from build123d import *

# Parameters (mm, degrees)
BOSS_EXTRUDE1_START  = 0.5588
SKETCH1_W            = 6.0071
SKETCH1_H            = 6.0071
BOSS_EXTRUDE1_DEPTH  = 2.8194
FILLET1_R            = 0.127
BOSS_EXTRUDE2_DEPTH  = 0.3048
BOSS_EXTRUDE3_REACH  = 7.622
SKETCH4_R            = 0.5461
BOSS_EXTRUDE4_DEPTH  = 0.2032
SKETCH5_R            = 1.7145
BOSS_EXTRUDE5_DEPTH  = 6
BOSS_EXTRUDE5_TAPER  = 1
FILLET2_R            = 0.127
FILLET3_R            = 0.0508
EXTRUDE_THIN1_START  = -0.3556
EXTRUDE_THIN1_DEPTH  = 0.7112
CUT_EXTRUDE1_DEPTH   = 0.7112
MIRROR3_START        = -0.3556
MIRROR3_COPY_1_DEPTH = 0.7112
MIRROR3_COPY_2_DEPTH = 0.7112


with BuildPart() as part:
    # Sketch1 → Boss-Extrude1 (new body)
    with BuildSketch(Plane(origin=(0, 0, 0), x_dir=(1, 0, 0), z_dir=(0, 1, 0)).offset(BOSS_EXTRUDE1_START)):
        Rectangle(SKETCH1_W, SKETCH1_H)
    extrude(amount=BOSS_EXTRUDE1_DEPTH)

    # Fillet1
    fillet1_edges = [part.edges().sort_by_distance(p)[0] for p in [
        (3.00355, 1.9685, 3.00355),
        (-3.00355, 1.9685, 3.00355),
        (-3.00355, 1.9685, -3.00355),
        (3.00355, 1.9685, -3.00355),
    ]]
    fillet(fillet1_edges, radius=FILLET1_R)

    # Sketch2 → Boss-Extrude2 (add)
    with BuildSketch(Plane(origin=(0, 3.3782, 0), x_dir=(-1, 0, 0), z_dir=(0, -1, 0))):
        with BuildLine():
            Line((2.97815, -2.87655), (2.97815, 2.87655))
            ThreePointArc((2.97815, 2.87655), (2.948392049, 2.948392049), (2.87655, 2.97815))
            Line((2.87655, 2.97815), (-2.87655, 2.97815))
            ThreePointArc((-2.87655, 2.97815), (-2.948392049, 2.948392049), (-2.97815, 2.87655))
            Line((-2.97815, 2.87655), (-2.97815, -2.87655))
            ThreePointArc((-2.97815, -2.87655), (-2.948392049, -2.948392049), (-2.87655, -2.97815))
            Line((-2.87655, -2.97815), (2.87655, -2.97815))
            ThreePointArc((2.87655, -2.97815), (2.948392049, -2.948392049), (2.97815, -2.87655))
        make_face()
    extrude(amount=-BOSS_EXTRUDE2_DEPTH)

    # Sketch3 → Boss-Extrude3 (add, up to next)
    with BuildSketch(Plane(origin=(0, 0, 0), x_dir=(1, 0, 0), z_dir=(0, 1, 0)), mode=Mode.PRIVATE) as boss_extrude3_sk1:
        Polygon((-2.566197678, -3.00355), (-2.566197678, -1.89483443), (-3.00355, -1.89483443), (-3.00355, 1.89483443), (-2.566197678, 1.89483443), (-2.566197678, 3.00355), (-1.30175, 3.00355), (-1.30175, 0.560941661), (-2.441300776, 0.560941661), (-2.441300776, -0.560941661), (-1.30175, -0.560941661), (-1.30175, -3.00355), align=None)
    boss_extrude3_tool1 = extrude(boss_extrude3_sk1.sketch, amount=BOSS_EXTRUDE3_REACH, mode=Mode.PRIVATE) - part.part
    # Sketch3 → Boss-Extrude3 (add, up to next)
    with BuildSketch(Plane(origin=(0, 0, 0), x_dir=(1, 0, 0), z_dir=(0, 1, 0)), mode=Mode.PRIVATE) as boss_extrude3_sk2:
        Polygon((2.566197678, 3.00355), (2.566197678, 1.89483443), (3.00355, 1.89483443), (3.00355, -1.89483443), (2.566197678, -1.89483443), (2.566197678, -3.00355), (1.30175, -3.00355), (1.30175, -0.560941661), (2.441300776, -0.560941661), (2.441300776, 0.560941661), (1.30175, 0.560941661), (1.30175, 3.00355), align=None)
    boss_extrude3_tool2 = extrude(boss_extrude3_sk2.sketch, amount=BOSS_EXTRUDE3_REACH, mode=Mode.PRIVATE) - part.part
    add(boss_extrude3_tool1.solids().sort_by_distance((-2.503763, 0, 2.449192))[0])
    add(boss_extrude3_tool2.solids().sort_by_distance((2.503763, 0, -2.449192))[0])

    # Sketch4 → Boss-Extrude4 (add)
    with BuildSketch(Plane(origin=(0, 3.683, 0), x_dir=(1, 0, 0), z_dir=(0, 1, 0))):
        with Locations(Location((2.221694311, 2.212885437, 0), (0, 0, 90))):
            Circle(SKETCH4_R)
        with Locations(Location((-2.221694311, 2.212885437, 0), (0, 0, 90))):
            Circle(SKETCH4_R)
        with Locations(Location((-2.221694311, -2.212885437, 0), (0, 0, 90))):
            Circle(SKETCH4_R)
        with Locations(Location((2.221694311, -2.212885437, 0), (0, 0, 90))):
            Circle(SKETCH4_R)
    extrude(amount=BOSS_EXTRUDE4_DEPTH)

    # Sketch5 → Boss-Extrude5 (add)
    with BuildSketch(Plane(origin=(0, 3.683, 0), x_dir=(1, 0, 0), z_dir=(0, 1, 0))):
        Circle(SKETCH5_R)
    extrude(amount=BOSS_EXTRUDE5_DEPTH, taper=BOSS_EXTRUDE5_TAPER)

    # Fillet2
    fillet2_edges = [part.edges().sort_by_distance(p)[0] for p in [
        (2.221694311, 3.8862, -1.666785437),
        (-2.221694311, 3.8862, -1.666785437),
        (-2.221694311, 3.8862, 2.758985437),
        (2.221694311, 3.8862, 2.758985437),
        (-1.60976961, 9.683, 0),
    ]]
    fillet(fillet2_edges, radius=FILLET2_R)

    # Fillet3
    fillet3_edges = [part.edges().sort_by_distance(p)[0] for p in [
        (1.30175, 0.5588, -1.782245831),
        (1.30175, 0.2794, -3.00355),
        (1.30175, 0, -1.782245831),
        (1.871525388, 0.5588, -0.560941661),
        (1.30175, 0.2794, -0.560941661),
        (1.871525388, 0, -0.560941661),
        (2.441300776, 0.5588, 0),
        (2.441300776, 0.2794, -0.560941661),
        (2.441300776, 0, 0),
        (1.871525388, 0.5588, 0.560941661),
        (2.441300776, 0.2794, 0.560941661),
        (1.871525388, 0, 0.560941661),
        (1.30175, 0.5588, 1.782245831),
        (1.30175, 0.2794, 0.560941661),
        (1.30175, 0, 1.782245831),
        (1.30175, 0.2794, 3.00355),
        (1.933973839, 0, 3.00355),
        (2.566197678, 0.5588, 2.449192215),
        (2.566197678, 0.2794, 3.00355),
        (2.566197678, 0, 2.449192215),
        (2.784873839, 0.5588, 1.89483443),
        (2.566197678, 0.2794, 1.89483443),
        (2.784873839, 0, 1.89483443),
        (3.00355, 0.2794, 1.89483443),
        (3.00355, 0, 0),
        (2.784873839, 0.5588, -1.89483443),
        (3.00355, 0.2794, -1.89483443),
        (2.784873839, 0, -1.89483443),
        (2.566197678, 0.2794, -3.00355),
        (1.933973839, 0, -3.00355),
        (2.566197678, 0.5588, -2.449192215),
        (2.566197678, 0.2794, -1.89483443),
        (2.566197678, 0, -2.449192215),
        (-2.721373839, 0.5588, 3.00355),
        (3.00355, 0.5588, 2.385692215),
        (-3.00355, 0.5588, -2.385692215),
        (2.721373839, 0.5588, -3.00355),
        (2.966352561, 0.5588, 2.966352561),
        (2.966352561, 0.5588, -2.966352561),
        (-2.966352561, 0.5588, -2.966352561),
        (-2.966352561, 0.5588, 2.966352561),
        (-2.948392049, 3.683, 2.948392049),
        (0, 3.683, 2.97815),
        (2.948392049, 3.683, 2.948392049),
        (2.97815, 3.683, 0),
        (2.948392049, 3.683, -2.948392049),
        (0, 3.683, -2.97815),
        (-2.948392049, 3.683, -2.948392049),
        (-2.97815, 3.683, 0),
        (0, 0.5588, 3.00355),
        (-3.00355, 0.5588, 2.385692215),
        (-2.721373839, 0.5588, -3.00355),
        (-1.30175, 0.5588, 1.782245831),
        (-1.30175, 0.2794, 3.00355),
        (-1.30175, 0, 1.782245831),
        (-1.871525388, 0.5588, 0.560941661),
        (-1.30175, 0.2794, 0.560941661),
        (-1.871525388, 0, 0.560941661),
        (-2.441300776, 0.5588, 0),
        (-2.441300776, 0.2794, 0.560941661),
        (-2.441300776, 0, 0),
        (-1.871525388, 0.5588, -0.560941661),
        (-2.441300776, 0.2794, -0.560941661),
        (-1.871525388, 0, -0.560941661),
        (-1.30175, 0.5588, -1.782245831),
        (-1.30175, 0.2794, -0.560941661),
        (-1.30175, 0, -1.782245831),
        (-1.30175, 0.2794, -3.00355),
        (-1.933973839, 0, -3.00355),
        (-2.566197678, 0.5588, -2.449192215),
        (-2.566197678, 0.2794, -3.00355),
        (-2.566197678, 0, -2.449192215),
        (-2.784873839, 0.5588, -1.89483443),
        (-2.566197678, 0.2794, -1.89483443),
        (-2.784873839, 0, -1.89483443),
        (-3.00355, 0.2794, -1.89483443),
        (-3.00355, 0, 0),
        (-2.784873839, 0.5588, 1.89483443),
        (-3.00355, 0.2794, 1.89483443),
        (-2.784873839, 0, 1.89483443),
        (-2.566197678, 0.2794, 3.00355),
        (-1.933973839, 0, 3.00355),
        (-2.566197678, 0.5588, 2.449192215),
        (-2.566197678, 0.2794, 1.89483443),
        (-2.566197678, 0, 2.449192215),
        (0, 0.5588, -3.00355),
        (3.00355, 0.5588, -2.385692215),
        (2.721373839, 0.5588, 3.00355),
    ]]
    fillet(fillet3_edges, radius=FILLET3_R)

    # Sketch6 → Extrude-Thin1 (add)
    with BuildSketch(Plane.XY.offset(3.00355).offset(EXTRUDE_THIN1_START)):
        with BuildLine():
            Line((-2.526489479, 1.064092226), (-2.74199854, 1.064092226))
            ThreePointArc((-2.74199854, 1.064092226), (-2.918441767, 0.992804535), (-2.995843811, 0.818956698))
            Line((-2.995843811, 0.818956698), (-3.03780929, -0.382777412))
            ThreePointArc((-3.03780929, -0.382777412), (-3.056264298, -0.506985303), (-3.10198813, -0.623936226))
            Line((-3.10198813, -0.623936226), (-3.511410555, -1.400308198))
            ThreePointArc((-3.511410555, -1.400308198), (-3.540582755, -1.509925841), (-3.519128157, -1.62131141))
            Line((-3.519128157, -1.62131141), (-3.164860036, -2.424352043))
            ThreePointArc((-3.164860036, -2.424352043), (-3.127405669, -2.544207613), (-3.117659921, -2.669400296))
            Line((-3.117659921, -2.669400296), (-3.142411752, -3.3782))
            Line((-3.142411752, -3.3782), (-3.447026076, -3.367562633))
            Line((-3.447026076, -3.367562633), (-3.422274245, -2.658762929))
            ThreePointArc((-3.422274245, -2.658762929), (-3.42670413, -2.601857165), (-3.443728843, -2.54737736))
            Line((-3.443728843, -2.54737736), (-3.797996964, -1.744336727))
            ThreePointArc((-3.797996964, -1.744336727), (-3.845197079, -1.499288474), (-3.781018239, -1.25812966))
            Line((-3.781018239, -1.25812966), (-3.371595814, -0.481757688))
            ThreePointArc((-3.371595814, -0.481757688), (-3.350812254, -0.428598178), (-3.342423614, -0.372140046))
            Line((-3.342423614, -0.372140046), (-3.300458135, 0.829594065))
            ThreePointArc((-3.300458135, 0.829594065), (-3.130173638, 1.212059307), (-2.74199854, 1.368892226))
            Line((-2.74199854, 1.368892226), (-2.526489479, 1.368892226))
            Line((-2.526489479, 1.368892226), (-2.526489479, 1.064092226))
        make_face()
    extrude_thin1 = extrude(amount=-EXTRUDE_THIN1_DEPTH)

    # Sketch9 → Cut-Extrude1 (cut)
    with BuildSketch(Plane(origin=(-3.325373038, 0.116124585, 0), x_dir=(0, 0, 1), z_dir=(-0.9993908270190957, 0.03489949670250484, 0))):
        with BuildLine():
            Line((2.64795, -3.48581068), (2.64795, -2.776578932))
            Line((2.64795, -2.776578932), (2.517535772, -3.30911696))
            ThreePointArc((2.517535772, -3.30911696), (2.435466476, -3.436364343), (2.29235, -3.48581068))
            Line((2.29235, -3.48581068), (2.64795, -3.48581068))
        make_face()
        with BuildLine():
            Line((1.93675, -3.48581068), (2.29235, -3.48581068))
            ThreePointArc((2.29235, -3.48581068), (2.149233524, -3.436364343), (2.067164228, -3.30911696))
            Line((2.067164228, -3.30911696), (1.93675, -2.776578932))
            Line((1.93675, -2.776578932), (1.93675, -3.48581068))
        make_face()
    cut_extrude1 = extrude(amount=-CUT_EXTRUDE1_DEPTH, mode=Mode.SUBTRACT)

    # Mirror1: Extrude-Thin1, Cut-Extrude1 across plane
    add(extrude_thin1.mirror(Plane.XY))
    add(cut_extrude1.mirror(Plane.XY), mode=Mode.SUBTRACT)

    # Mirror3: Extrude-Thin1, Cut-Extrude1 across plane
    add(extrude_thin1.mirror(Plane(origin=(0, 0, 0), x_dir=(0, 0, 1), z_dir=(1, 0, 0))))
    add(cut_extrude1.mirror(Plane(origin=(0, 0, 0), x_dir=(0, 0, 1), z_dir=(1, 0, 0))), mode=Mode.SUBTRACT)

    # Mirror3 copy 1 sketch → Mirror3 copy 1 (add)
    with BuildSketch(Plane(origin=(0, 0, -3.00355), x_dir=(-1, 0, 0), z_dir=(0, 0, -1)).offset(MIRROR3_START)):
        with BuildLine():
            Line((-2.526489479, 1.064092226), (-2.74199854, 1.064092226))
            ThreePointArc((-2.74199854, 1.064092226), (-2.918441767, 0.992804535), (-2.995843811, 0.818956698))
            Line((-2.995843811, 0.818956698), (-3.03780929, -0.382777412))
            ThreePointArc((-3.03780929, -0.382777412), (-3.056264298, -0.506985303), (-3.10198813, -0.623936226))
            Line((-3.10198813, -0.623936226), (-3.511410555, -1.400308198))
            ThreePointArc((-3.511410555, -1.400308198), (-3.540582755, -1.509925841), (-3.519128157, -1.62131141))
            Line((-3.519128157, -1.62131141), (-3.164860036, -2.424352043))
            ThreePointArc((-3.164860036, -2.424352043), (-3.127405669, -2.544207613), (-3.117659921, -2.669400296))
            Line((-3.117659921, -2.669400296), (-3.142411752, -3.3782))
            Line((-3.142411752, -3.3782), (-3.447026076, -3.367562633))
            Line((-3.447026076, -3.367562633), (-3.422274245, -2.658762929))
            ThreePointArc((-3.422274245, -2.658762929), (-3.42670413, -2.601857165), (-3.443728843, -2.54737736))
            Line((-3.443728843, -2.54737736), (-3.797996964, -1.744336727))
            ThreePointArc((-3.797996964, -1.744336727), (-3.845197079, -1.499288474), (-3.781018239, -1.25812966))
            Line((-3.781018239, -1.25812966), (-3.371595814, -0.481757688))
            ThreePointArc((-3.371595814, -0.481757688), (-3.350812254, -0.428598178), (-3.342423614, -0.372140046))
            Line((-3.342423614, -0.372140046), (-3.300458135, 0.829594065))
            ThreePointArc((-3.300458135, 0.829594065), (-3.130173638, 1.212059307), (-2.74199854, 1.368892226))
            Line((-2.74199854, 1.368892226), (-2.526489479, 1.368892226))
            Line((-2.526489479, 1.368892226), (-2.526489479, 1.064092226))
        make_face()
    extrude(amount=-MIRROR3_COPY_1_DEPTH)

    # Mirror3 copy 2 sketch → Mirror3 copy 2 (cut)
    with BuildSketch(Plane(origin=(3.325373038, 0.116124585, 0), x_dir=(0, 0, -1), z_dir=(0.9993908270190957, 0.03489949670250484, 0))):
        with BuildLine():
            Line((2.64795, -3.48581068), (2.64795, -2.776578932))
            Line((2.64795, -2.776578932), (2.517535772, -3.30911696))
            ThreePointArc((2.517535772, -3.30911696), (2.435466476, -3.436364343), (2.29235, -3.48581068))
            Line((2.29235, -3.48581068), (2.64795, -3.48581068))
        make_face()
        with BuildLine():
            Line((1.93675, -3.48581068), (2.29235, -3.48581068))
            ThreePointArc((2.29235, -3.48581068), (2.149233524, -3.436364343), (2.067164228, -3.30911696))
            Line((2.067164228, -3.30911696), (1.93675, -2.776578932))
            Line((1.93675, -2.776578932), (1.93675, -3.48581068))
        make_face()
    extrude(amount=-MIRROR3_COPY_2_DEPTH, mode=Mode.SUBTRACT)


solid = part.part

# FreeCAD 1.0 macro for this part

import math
import FreeCAD as App
import Part
import Sketcher
Q = App.Units.Quantity


def edges_at(feature, points):
    """Names of the edges that pass closest to the given points."""
    edges = feature.Shape.Edges
    near = lambda p: min(range(len(edges)), key=lambda i: edges[i].distToShape(Part.Vertex(*p))[0])
    return sorted({f"Edge{near(p) + 1}" for p in points})

doc = App.newDocument("Part")
body = doc.addObject("PartDesign::Body", "Body")

# Sketch on XZ plane
sketch1 = body.newObject("Sketcher::SketchObject", "Sketch")
sketch1.AttachmentSupport = (doc.getObject("XZ_Plane"), [""])
sketch1.MapMode = "FlatFace"
sketch1.AttachmentOffset = App.Placement(App.Vector(0, 0, -0.022 * 25.4), App.Rotation())
sketch1.addGeometry([
    Part.LineSegment(App.Vector(-3, -3, 0), App.Vector(-3, 3, 0)),
    Part.LineSegment(App.Vector(-3, 3, 0), App.Vector(3, 3, 0)),
    Part.LineSegment(App.Vector(3, 3, 0), App.Vector(3, -3, 0)),
    Part.LineSegment(App.Vector(3, -3, 0), App.Vector(-3, -3, 0)),
], False)
sketch1.addConstraint([
    Sketcher.Constraint("Coincident", 0, 2, 1, 1),
    Sketcher.Constraint("Coincident", 1, 2, 2, 1),
    Sketcher.Constraint("Coincident", 2, 2, 3, 1),
    Sketcher.Constraint("Coincident", 3, 2, 0, 1),
    Sketcher.Constraint("Vertical", 0),
    Sketcher.Constraint("Horizontal", 1),
    Sketcher.Constraint("Vertical", 2),
    Sketcher.Constraint("Horizontal", 3),
    Sketcher.Constraint("Symmetric", 0, 2, 2, 2, -1, 1),
    Sketcher.Constraint("Equal", 3, 0),
    Sketcher.Constraint("DistanceX", 1, 1, 1, 2, Q("0.2365 in")),
])
pad1 = body.newObject("PartDesign::Pad", "Pad")
pad1.Profile = sketch1
pad1.Length = Q("0.111 in")
pad1.Reversed = True
doc.recompute()

fillet = body.newObject("PartDesign::Fillet", "Fillet")
fillet.Base = (pad1, edges_at(pad1, [
    (3.004, 1.968, 3.004),
    (-3.004, 1.968, 3.004),
    (-3.004, 1.968, -3.004),
    (3.004, 1.968, -3.004),
]))
fillet.Radius = Q("0.005 in")

# Sketch on XZ plane
sketch2 = body.newObject("Sketcher::SketchObject", "Sketch001")
sketch2.AttachmentSupport = (doc.getObject("XZ_Plane"), [""])
sketch2.MapMode = "FlatFace"
sketch2.AttachmentOffset = App.Placement(App.Vector(0, 0, -0.133 * 25.4), App.Rotation())
sketch2.addGeometry([
    Part.LineSegment(App.Vector(-2.98, 2.88, 0), App.Vector(-2.98, -2.88, 0)),  # 0
    Part.ArcOfCircle(Part.Circle(App.Vector(-2.88, -2.88, 0), App.Vector(0, 0, 1), 0.1), math.radians(180), math.radians(270)),  # 1
    Part.LineSegment(App.Vector(-2.88, -2.98, 0), App.Vector(2.88, -2.98, 0)),  # 2
    Part.ArcOfCircle(Part.Circle(App.Vector(2.88, -2.88, 0), App.Vector(0, 0, 1), 0.1), math.radians(-90), math.radians(0)),  # 3
    Part.LineSegment(App.Vector(2.98, -2.88, 0), App.Vector(2.98, 2.88, 0)),  # 4
    Part.ArcOfCircle(Part.Circle(App.Vector(2.88, 2.88, 0), App.Vector(0, 0, 1), 0.1), math.radians(0), math.radians(90)),  # 5
    Part.LineSegment(App.Vector(2.88, 2.98, 0), App.Vector(-2.88, 2.98, 0)),  # 6
    Part.ArcOfCircle(Part.Circle(App.Vector(-2.88, 2.88, 0), App.Vector(0, 0, 1), 0.1), math.radians(90), math.radians(180)),  # 7
], False)
sketch2.addConstraint([
    Sketcher.Constraint("Tangent", 0, 2, 1, 1),
    Sketcher.Constraint("Tangent", 1, 2, 2, 1),
    Sketcher.Constraint("Tangent", 2, 2, 3, 1),
    Sketcher.Constraint("Tangent", 3, 2, 4, 1),
    Sketcher.Constraint("Tangent", 4, 2, 5, 1),
    Sketcher.Constraint("Tangent", 5, 2, 6, 1),
    Sketcher.Constraint("Tangent", 6, 2, 7, 1),
    Sketcher.Constraint("Tangent", 7, 2, 0, 1),
    Sketcher.Constraint("Vertical", 0),
    Sketcher.Constraint("Horizontal", 2),
    Sketcher.Constraint("Vertical", 4),
    Sketcher.Constraint("Horizontal", 6),
    Sketcher.Constraint("Equal", 1, 3),
    Sketcher.Constraint("Equal", 3, 5),
    Sketcher.Constraint("Equal", 5, 7),
    Sketcher.Constraint("Symmetric", 1, 3, 5, 3, -1, 1),
    Sketcher.Constraint("Equal", 6, 0),
    Sketcher.Constraint("Radius", 1, Q("0.004 in")),
    Sketcher.Constraint("DistanceX", 2, 1, 2, 2, Q("0.2265 in")),
])
pad2 = body.newObject("PartDesign::Pad", "Pad001")
pad2.Profile = sketch2
pad2.Length = Q("0.012 in")
pad2.Reversed = True

# Sketch on XZ plane
sketch3 = body.newObject("Sketcher::SketchObject", "Sketch002")
sketch3.AttachmentSupport = (doc.getObject("XZ_Plane"), [""])
sketch3.MapMode = "FlatFace"
sketch3.addGeometry([
    Part.LineSegment(App.Vector(-2.57, 1.89, 0), App.Vector(-2.57, 3, 0)),  # 0
    Part.LineSegment(App.Vector(-2.57, 3, 0), App.Vector(-1.3, 3, 0)),  # 1
    Part.LineSegment(App.Vector(-1.3, 3, 0), App.Vector(-1.3, 0.56, 0)),  # 2
    Part.LineSegment(App.Vector(-1.3, 0.56, 0), App.Vector(-2.44, 0.56, 0)),  # 3
    Part.LineSegment(App.Vector(-2.44, 0.56, 0), App.Vector(-2.44, -0.56, 0)),  # 4
    Part.LineSegment(App.Vector(-2.44, -0.56, 0), App.Vector(-1.3, -0.56, 0)),  # 5
    Part.LineSegment(App.Vector(-1.3, -0.56, 0), App.Vector(-1.3, -3, 0)),  # 6
    Part.LineSegment(App.Vector(-1.3, -3, 0), App.Vector(-2.57, -3, 0)),  # 7
    Part.LineSegment(App.Vector(-2.57, -3, 0), App.Vector(-2.57, -1.89, 0)),  # 8
    Part.LineSegment(App.Vector(-2.57, -1.89, 0), App.Vector(-3, -1.89, 0)),  # 9
    Part.LineSegment(App.Vector(-3, -1.89, 0), App.Vector(-3, 1.89, 0)),  # 10
    Part.LineSegment(App.Vector(-3, 1.89, 0), App.Vector(-2.57, 1.89, 0)),  # 11
], False)
sketch3.addConstraint([
    Sketcher.Constraint("Coincident", 0, 2, 1, 1),
    Sketcher.Constraint("Coincident", 1, 2, 2, 1),
    Sketcher.Constraint("Coincident", 2, 2, 3, 1),
    Sketcher.Constraint("Coincident", 3, 2, 4, 1),
    Sketcher.Constraint("Coincident", 4, 2, 5, 1),
    Sketcher.Constraint("Coincident", 5, 2, 6, 1),
    Sketcher.Constraint("Coincident", 6, 2, 7, 1),
    Sketcher.Constraint("Coincident", 7, 2, 8, 1),
    Sketcher.Constraint("Coincident", 8, 2, 9, 1),
    Sketcher.Constraint("Coincident", 9, 2, 10, 1),
    Sketcher.Constraint("Coincident", 10, 2, 11, 1),
    Sketcher.Constraint("Coincident", 11, 2, 0, 1),
    Sketcher.Constraint("Vertical", 0),
    Sketcher.Constraint("Horizontal", 1),
    Sketcher.Constraint("Vertical", 2),
    Sketcher.Constraint("Horizontal", 3),
    Sketcher.Constraint("Vertical", 4),
    Sketcher.Constraint("Horizontal", 5),
    Sketcher.Constraint("Vertical", 6),
    Sketcher.Constraint("Horizontal", 7),
    Sketcher.Constraint("Vertical", 8),
    Sketcher.Constraint("Horizontal", 9),
    Sketcher.Constraint("Vertical", 10),
    Sketcher.Constraint("Horizontal", 11),
    Sketcher.Constraint("Symmetric", 2, 2, 5, 2, -1),
    Sketcher.Constraint("Symmetric", 0, 2, 7, 2, -1),
    Sketcher.Constraint("Equal", 0, 8),
    Sketcher.Constraint("DistanceX", 9, 2, 6, 2, Q("0.067 in")),
    Sketcher.Constraint("DistanceY", 6, 2, 1, 2, Q("0.2365 in")),
    Sketcher.Constraint("DistanceX", 3, 2, 3, 1, 1.139551),
    Sketcher.Constraint("DistanceY", 2, 2, 2, 1, 2.442608),
    Sketcher.Constraint("DistanceY", 10, 1, 10, 2, 3.789669),
    Sketcher.Constraint("DistanceX", 3, 2, -1, 1, 2.441301),
    Sketcher.Constraint("DistanceX", 1, 1, 1, 2, 1.264448),
])
pad3 = body.newObject("PartDesign::Pad", "Pad002")
pad3.Profile = sketch3
pad3.Type = "UpToFirst"
pad3.Reversed = True

# Sketch on XZ plane
sketch4 = body.newObject("Sketcher::SketchObject", "Sketch003")
sketch4.AttachmentSupport = (doc.getObject("XZ_Plane"), [""])
sketch4.MapMode = "FlatFace"
sketch4.addGeometry([
    Part.LineSegment(App.Vector(2.57, -1.89, 0), App.Vector(2.57, -3, 0)),  # 0
    Part.LineSegment(App.Vector(2.57, -3, 0), App.Vector(1.3, -3, 0)),  # 1
    Part.LineSegment(App.Vector(1.3, -3, 0), App.Vector(1.3, -0.56, 0)),  # 2
    Part.LineSegment(App.Vector(1.3, -0.56, 0), App.Vector(2.44, -0.56, 0)),  # 3
    Part.LineSegment(App.Vector(2.44, -0.56, 0), App.Vector(2.44, 0.56, 0)),  # 4
    Part.LineSegment(App.Vector(2.44, 0.56, 0), App.Vector(1.3, 0.56, 0)),  # 5
    Part.LineSegment(App.Vector(1.3, 0.56, 0), App.Vector(1.3, 3, 0)),  # 6
    Part.LineSegment(App.Vector(1.3, 3, 0), App.Vector(2.57, 3, 0)),  # 7
    Part.LineSegment(App.Vector(2.57, 3, 0), App.Vector(2.57, 1.89, 0)),  # 8
    Part.LineSegment(App.Vector(2.57, 1.89, 0), App.Vector(3, 1.89, 0)),  # 9
    Part.LineSegment(App.Vector(3, 1.89, 0), App.Vector(3, -1.89, 0)),  # 10
    Part.LineSegment(App.Vector(3, -1.89, 0), App.Vector(2.57, -1.89, 0)),  # 11
], False)
sketch4.addConstraint([
    Sketcher.Constraint("Coincident", 0, 2, 1, 1),
    Sketcher.Constraint("Coincident", 1, 2, 2, 1),
    Sketcher.Constraint("Coincident", 2, 2, 3, 1),
    Sketcher.Constraint("Coincident", 3, 2, 4, 1),
    Sketcher.Constraint("Coincident", 4, 2, 5, 1),
    Sketcher.Constraint("Coincident", 5, 2, 6, 1),
    Sketcher.Constraint("Coincident", 6, 2, 7, 1),
    Sketcher.Constraint("Coincident", 7, 2, 8, 1),
    Sketcher.Constraint("Coincident", 8, 2, 9, 1),
    Sketcher.Constraint("Coincident", 9, 2, 10, 1),
    Sketcher.Constraint("Coincident", 10, 2, 11, 1),
    Sketcher.Constraint("Coincident", 11, 2, 0, 1),
    Sketcher.Constraint("Vertical", 0),
    Sketcher.Constraint("Horizontal", 1),
    Sketcher.Constraint("Vertical", 2),
    Sketcher.Constraint("Horizontal", 3),
    Sketcher.Constraint("Vertical", 4),
    Sketcher.Constraint("Horizontal", 5),
    Sketcher.Constraint("Vertical", 6),
    Sketcher.Constraint("Horizontal", 7),
    Sketcher.Constraint("Vertical", 8),
    Sketcher.Constraint("Horizontal", 9),
    Sketcher.Constraint("Vertical", 10),
    Sketcher.Constraint("Horizontal", 11),
    Sketcher.Constraint("Symmetric", 2, 2, 5, 2, -1),
    Sketcher.Constraint("Symmetric", 0, 2, 7, 2, -1),
    Sketcher.Constraint("Equal", 0, 8),
    Sketcher.Constraint("DistanceX", 6, 2, 9, 2, Q("0.067 in")),
    Sketcher.Constraint("DistanceY", 1, 2, 6, 2, Q("0.2365 in")),
    Sketcher.Constraint("DistanceX", 3, 1, 3, 2, 1.139551),
    Sketcher.Constraint("DistanceY", 2, 1, 2, 2, 2.442608),
    Sketcher.Constraint("DistanceY", 10, 2, 10, 1, 3.789669),
    Sketcher.Constraint("DistanceX", -1, 1, 3, 2, 2.441301),
    Sketcher.Constraint("DistanceX", 1, 2, 1, 1, 1.264448),
])
pad4 = body.newObject("PartDesign::Pad", "Pad003")
pad4.Profile = sketch4
pad4.Type = "UpToFirst"
pad4.Reversed = True

# Sketch on XZ plane
sketch5 = body.newObject("Sketcher::SketchObject", "Sketch004")
sketch5.AttachmentSupport = (doc.getObject("XZ_Plane"), [""])
sketch5.MapMode = "FlatFace"
sketch5.AttachmentOffset = App.Placement(App.Vector(0, 0, -0.145 * 25.4), App.Rotation())
sketch5.addGeometry([
    Part.Circle(App.Vector(2.2, -2.2, 0), App.Vector(0, 0, 1), 0.5),
    Part.Circle(App.Vector(-2.2, -2.2, 0), App.Vector(0, 0, 1), 0.5),
    Part.Circle(App.Vector(-2.2, 2.2, 0), App.Vector(0, 0, 1), 0.5),
    Part.Circle(App.Vector(2.2, 2.2, 0), App.Vector(0, 0, 1), 0.5),
], False)
sketch5.addConstraint([
    Sketcher.Constraint("Equal", 0, 1),
    Sketcher.Constraint("Equal", 1, 2),
    Sketcher.Constraint("Equal", 2, 3),
    Sketcher.Constraint("Symmetric", 0, 3, 2, 3, -1, 1),
    Sketcher.Constraint("Symmetric", 1, 3, 3, 3, -1, 1),
    Sketcher.Constraint("Symmetric", 0, 3, 1, 3, -2),
    Sketcher.Constraint("Diameter", 0, Q("0.043 in")),
    Sketcher.Constraint("DistanceX", 1, 3, 0, 3, 4.443389),
    Sketcher.Constraint("DistanceY", 1, 3, 2, 3, 4.425771),
])
pad5 = body.newObject("PartDesign::Pad", "Pad004")
pad5.Profile = sketch5
pad5.Length = Q("0.008 in")
pad5.Reversed = True

# Sketch on XZ plane
sketch6 = body.newObject("Sketcher::SketchObject", "Sketch005")
sketch6.AttachmentSupport = (doc.getObject("XZ_Plane"), [""])
sketch6.MapMode = "FlatFace"
sketch6.AttachmentOffset = App.Placement(App.Vector(0, 0, -0.145 * 25.4), App.Rotation())
sketch6.addGeometry(Part.Circle(App.Vector(0, 0, 0), App.Vector(0, 0, 1), 1.7), False)
sketch6.addConstraint([
    Sketcher.Constraint("Coincident", 0, 3, -1, 1),
    Sketcher.Constraint("Diameter", 0, Q("0.135 in")),
])
pad6 = body.newObject("PartDesign::Pad", "Pad005")
pad6.Profile = sketch6
pad6.Length = 6
pad6.Reversed = True
pad6.TaperAngle = -1
doc.recompute()

fillet2 = body.newObject("PartDesign::Fillet", "Fillet001")
fillet2.Base = (pad6, edges_at(pad6, [
    (2.222, 3.886, -1.667),
    (-2.222, 3.886, -1.667),
    (-2.222, 3.886, 2.759),
    (2.222, 3.886, 2.759),
    (-1.61, 9.683, 0),
]))
fillet2.Radius = Q("0.005 in")
doc.recompute()

fillet3 = body.newObject("PartDesign::Fillet", "Fillet002")
fillet3.Base = (fillet2, edges_at(fillet2, [
    (1.302, 0.559, -1.782),
    (1.302, 0.279, -3.004),
    (1.302, 0, -1.782),
    (1.872, 0.559, -0.561),
    (1.302, 0.279, -0.561),
    (1.872, 0, -0.561),
    (2.441, 0.559, 0),
    (2.441, 0.279, -0.561),
    (2.441, 0, 0),
    (1.872, 0.559, 0.561),
    (2.441, 0.279, 0.561),
    (1.872, 0, 0.561),
    (1.302, 0.559, 1.782),
    (1.302, 0.279, 0.561),
    (1.302, 0, 1.782),
    (1.302, 0.279, 3.004),
    (1.934, 0, 3.004),
    (2.566, 0.559, 2.449),
    (2.566, 0.279, 3.004),
    (2.566, 0, 2.449),
    (2.785, 0.559, 1.895),
    (2.566, 0.279, 1.895),
    (2.785, 0, 1.895),
    (3.004, 0.279, 1.895),
    (3.004, 0, 0),
    (2.785, 0.559, -1.895),
    (3.004, 0.279, -1.895),
    (2.785, 0, -1.895),
    (2.566, 0.279, -3.004),
    (1.934, 0, -3.004),
    (2.566, 0.559, -2.449),
    (2.566, 0.279, -1.895),
    (2.566, 0, -2.449),
    (-2.721, 0.559, 3.004),
    (3.004, 0.559, 2.386),
    (-3.004, 0.559, -2.386),
    (2.721, 0.559, -3.004),
    (2.966, 0.559, 2.966),
    (2.966, 0.559, -2.966),
    (-2.966, 0.559, -2.966),
    (-2.966, 0.559, 2.966),
    (-2.948, 3.683, 2.948),
    (0, 3.683, 2.978),
    (2.948, 3.683, 2.948),
    (2.978, 3.683, 0),
    (2.948, 3.683, -2.948),
    (0, 3.683, -2.978),
    (-2.948, 3.683, -2.948),
    (-2.978, 3.683, 0),
    (0, 0.559, 3.004),
    (-3.004, 0.559, 2.386),
    (-2.721, 0.559, -3.004),
    (-1.302, 0.559, 1.782),
    (-1.302, 0.279, 3.004),
    (-1.302, 0, 1.782),
    (-1.872, 0.559, 0.561),
    (-1.302, 0.279, 0.561),
    (-1.872, 0, 0.561),
    (-2.441, 0.559, 0),
    (-2.441, 0.279, 0.561),
    (-2.441, 0, 0),
    (-1.872, 0.559, -0.561),
    (-2.441, 0.279, -0.561),
    (-1.872, 0, -0.561),
    (-1.302, 0.559, -1.782),
    (-1.302, 0.279, -0.561),
    (-1.302, 0, -1.782),
    (-1.302, 0.279, -3.004),
    (-1.934, 0, -3.004),
    (-2.566, 0.559, -2.449),
    (-2.566, 0.279, -3.004),
    (-2.566, 0, -2.449),
    (-2.785, 0.559, -1.895),
    (-2.566, 0.279, -1.895),
    (-2.785, 0, -1.895),
    (-3.004, 0.279, -1.895),
    (-3.004, 0, 0),
    (-2.785, 0.559, 1.895),
    (-3.004, 0.279, 1.895),
    (-2.785, 0, 1.895),
    (-2.566, 0.279, 3.004),
    (-1.934, 0, 3.004),
    (-2.566, 0.559, 2.449),
    (-2.566, 0.279, 1.895),
    (-2.566, 0, 2.449),
    (0, 0.559, -3.004),
    (3.004, 0.559, -2.386),
    (2.721, 0.559, 3.004),
]))
fillet3.Radius = Q("0.002 in")

# Sketch on XY plane
sketch7 = body.newObject("Sketcher::SketchObject", "Sketch006")
sketch7.AttachmentSupport = (doc.getObject("XY_Plane"), [""])
sketch7.MapMode = "FlatFace"
sketch7.AttachmentOffset = App.Placement(App.Vector(0, 0, 2.64795), App.Rotation())
sketch7.addGeometry([
    Part.LineSegment(App.Vector(-2.74, 1.06, 0), App.Vector(-2.53, 1.06, 0)),  # 0
    Part.LineSegment(App.Vector(-2.53, 1.06, 0), App.Vector(-2.53, 1.37, 0)),  # 1
    Part.LineSegment(App.Vector(-2.53, 1.37, 0), App.Vector(-2.74, 1.37, 0)),  # 2
    Part.ArcOfCircle(Part.Circle(App.Vector(-2.74, 0.81, 0), App.Vector(0, 0, 1), 0.56), math.radians(90), math.radians(178)),  # 3
    Part.LineSegment(App.Vector(-3.3, 0.83, 0), App.Vector(-3.34, -0.37, 0)),  # 4
    Part.ArcOfCircle(Part.Circle(App.Vector(-3.6, -0.36, 0), App.Vector(0, 0, 1), 0.25), math.radians(-28), math.radians(-2)),  # 5
    Part.LineSegment(App.Vector(-3.37, -0.48, 0), App.Vector(-3.78, -1.26, 0)),  # 6
    Part.ArcOfCircle(Part.Circle(App.Vector(-3.29, -1.52, 0), App.Vector(0, 0, 1), 0.56), math.radians(152), math.radians(204)),  # 7
    Part.LineSegment(App.Vector(-3.8, -1.74, 0), App.Vector(-3.44, -2.55, 0)),  # 8
    Part.ArcOfCircle(Part.Circle(App.Vector(-3.68, -2.65, 0), App.Vector(0, 0, 1), 0.25), math.radians(-2), math.radians(24)),  # 9
    Part.LineSegment(App.Vector(-3.42, -2.66, 0), App.Vector(-3.45, -3.37, 0)),  # 10
    Part.LineSegment(App.Vector(-3.45, -3.37, 0), App.Vector(-3.14, -3.38, 0)),  # 11
    Part.LineSegment(App.Vector(-3.14, -3.38, 0), App.Vector(-3.12, -2.67, 0)),  # 12
    Part.ArcOfCircle(Part.Circle(App.Vector(-3.68, -2.65, 0), App.Vector(0, 0, 1), 0.56), math.radians(-2), math.radians(24)),  # 13
    Part.LineSegment(App.Vector(-3.16, -2.42, 0), App.Vector(-3.52, -1.62, 0)),  # 14
    Part.ArcOfCircle(Part.Circle(App.Vector(-3.29, -1.52, 0), App.Vector(0, 0, 1), 0.25), math.radians(152), math.radians(204)),  # 15
    Part.LineSegment(App.Vector(-3.51, -1.4, 0), App.Vector(-3.1, -0.62, 0)),  # 16
    Part.ArcOfCircle(Part.Circle(App.Vector(-3.6, -0.36, 0), App.Vector(0, 0, 1), 0.56), math.radians(-28), math.radians(-2)),  # 17
    Part.LineSegment(App.Vector(-3.04, -0.38, 0), App.Vector(-3, 0.82, 0)),  # 18
    Part.ArcOfCircle(Part.Circle(App.Vector(-2.74, 0.81, 0), App.Vector(0, 0, 1), 0.25), math.radians(90), math.radians(178)),  # 19
], False)
sketch7.addConstraint([
    Sketcher.Constraint("Coincident", 0, 2, 1, 1),
    Sketcher.Constraint("Coincident", 1, 2, 2, 1),
    Sketcher.Constraint("Tangent", 2, 2, 3, 1),
    Sketcher.Constraint("Tangent", 3, 2, 4, 1),
    Sketcher.Constraint("Tangent", 4, 2, 5, 2),
    Sketcher.Constraint("Tangent", 5, 1, 6, 1),
    Sketcher.Constraint("Tangent", 6, 2, 7, 1),
    Sketcher.Constraint("Tangent", 7, 2, 8, 1),
    Sketcher.Constraint("Tangent", 8, 2, 9, 2),
    Sketcher.Constraint("Tangent", 9, 1, 10, 1),
    Sketcher.Constraint("Coincident", 10, 2, 11, 1),
    Sketcher.Constraint("Coincident", 11, 2, 12, 1),
    Sketcher.Constraint("Tangent", 12, 2, 13, 1),
    Sketcher.Constraint("Tangent", 13, 2, 14, 1),
    Sketcher.Constraint("Tangent", 14, 2, 15, 2),
    Sketcher.Constraint("Tangent", 15, 1, 16, 1),
    Sketcher.Constraint("Tangent", 16, 2, 17, 1),
    Sketcher.Constraint("Tangent", 17, 2, 18, 1),
    Sketcher.Constraint("Tangent", 18, 2, 19, 2),
    Sketcher.Constraint("Tangent", 19, 1, 0, 1),
    Sketcher.Constraint("Horizontal", 0),
    Sketcher.Constraint("Vertical", 1),
    Sketcher.Constraint("Horizontal", 2),
    Sketcher.Constraint("Coincident", 13, 3, 9, 3),
    Sketcher.Constraint("Coincident", 15, 3, 7, 3),
    Sketcher.Constraint("Coincident", 17, 3, 5, 3),
    Sketcher.Constraint("Coincident", 19, 3, 3, 3),
    Sketcher.Constraint("Equal", 3, 7),
    Sketcher.Constraint("Equal", 5, 9),
    Sketcher.Constraint("Equal", 7, 13),
    Sketcher.Constraint("Equal", 9, 15),
    Sketcher.Constraint("Equal", 13, 17),
    Sketcher.Constraint("Equal", 15, 19),
    Sketcher.Constraint("Parallel", 4, 10),
    Sketcher.Constraint("Perpendicular", 10, 11),
    Sketcher.Constraint("Perpendicular", 11, 12),
    Sketcher.Constraint("Equal", 6, 8),
    Sketcher.Constraint("Radius", 5, Q("0.01 in")),
    Sketcher.Constraint("Angle", 4, Q("-92 deg")),
    Sketcher.Constraint("Radius", 3, Q("0.022 in")),
    Sketcher.Constraint("DistanceY", 11, 2, -1, 1, Q("0.133 in")),
    Sketcher.Constraint("DistanceX", 0, 1, 0, 2, 0.215509),
    Sketcher.Constraint("DistanceX", 3, 3, -1, 1, 2.741999),
    Sketcher.Constraint("DistanceY", 9, 3, -1, 1, 2.649898),
    Sketcher.Constraint("DistanceX", 13, 2, 12, 2, 0.0472),
    Sketcher.Constraint("DistanceX", 5, 3, -1, 1, 3.596269),
    Sketcher.Constraint("DistanceY", 7, 3, -1, 1, 1.51879),
    Sketcher.Constraint("DistanceX", 9, 3, -1, 1, 3.67612),
])
pad7 = body.newObject("PartDesign::Pad", "Pad006")
pad7.Profile = sketch7
pad7.Length = Q("0.028 in")
pad7.Reversed = True

# Sketch on an angled plane
sketch8 = body.newObject("Sketcher::SketchObject", "Sketch007")
sketch8.Placement = App.Placement(App.Vector(-3.325373, 0.116125, 0), App.Rotation(App.Vector(0, 0, 1), App.Vector(0.034899497, 0.999390827, 0), App.Vector(-0.999390827, 0.034899497, 0), "ZXY"))
sketch8.addGeometry([
    Part.LineSegment(App.Vector(2.65, -3.49, 0), App.Vector(2.65, -2.78, 0)),  # 0
    Part.LineSegment(App.Vector(2.65, -2.78, 0), App.Vector(2.52, -3.31, 0)),  # 1
    Part.ArcOfCircle(Part.Circle(App.Vector(2.29, -3.25, 0), App.Vector(0, 0, 1), 0.23), math.radians(-90), math.radians(-14)),  # 2
    Part.LineSegment(App.Vector(2.29, -3.49, 0), App.Vector(2.65, -3.49, 0)),  # 3
    Part.LineSegment(App.Vector(1.94, -3.49, 0), App.Vector(2.29, -3.49, 0)),  # 4
    Part.ArcOfCircle(Part.Circle(App.Vector(2.29, -3.25, 0), App.Vector(0, 0, 1), 0.23), math.radians(-166), math.radians(-90)),  # 5
    Part.LineSegment(App.Vector(2.07, -3.31, 0), App.Vector(1.94, -2.78, 0)),  # 6
    Part.LineSegment(App.Vector(1.94, -2.78, 0), App.Vector(1.94, -3.49, 0)),  # 7
], False)
sketch8.addConstraint([
    Sketcher.Constraint("Coincident", 0, 2, 1, 1),
    Sketcher.Constraint("Tangent", 1, 2, 2, 2),
    Sketcher.Constraint("Tangent", 2, 1, 3, 1),
    Sketcher.Constraint("Coincident", 3, 2, 0, 1),
    Sketcher.Constraint("Tangent", 4, 2, 5, 2),
    Sketcher.Constraint("Tangent", 5, 1, 6, 1),
    Sketcher.Constraint("Coincident", 6, 2, 7, 1),
    Sketcher.Constraint("Coincident", 7, 2, 4, 1),
    Sketcher.Constraint("Vertical", 0),
    Sketcher.Constraint("Horizontal", 3),
    Sketcher.Constraint("Horizontal", 4),
    Sketcher.Constraint("Vertical", 7),
    Sketcher.Constraint("Coincident", 5, 3, 2, 3),
    Sketcher.Constraint("Equal", 2, 5),
    Sketcher.Constraint("Horizontal", 1, 2, 5, 1),
    Sketcher.Constraint("Horizontal", 0, 2, 6, 2),
    Sketcher.Constraint("DistanceX", 3, 1, 3, 2, Q("0.014 in")),
    Sketcher.Constraint("Radius", 2, 0.23184),
    Sketcher.Constraint("DistanceY", 0, 1, 0, 2, 0.709232),
    Sketcher.Constraint("DistanceX", -1, 1, 2, 3, 2.29235),
    Sketcher.Constraint("DistanceY", 2, 3, -1, 1, 3.253971),
])
pocket1 = body.newObject("PartDesign::Pocket", "Pocket")
pocket1.Profile = sketch8
pocket1.Length = Q("0.028 in")
doc.recompute()

mirrored = body.newObject("PartDesign::Mirrored", "Mirrored")
mirrored.Originals = [pad7, pocket1]
mirrored.MirrorPlane = (doc.getObject("XY_Plane"), [""])
body.Tip = mirrored
doc.recompute()

mirrored2 = body.newObject("PartDesign::Mirrored", "Mirrored001")
mirrored2.Originals = [pad7, pocket1]
mirrored2.MirrorPlane = (doc.getObject("YZ_Plane"), [""])
body.Tip = mirrored2

# Sketch on XY plane
sketch9 = body.newObject("Sketcher::SketchObject", "Sketch008")
sketch9.AttachmentSupport = (doc.getObject("XY_Plane"), [""])
sketch9.MapMode = "FlatFace"
sketch9.AttachmentOffset = App.Placement(App.Vector(0, 0, -2.64795), App.Rotation())
sketch9.addGeometry([
    Part.LineSegment(App.Vector(2.74, 1.06, 0), App.Vector(2.53, 1.06, 0)),  # 0
    Part.LineSegment(App.Vector(2.53, 1.06, 0), App.Vector(2.53, 1.37, 0)),  # 1
    Part.LineSegment(App.Vector(2.53, 1.37, 0), App.Vector(2.74, 1.37, 0)),  # 2
    Part.ArcOfCircle(Part.Circle(App.Vector(2.74, 0.81, 0), App.Vector(0, 0, 1), 0.56), math.radians(2), math.radians(90)),  # 3
    Part.LineSegment(App.Vector(3.3, 0.83, 0), App.Vector(3.34, -0.37, 0)),  # 4
    Part.ArcOfCircle(Part.Circle(App.Vector(3.6, -0.36, 0), App.Vector(0, 0, 1), 0.25), math.radians(-178), math.radians(-152)),  # 5
    Part.LineSegment(App.Vector(3.37, -0.48, 0), App.Vector(3.78, -1.26, 0)),  # 6
    Part.ArcOfCircle(Part.Circle(App.Vector(3.29, -1.52, 0), App.Vector(0, 0, 1), 0.56), math.radians(-24), math.radians(28)),  # 7
    Part.LineSegment(App.Vector(3.8, -1.74, 0), App.Vector(3.44, -2.55, 0)),  # 8
    Part.ArcOfCircle(Part.Circle(App.Vector(3.68, -2.65, 0), App.Vector(0, 0, 1), 0.25), math.radians(156), math.radians(182)),  # 9
    Part.LineSegment(App.Vector(3.42, -2.66, 0), App.Vector(3.45, -3.37, 0)),  # 10
    Part.LineSegment(App.Vector(3.45, -3.37, 0), App.Vector(3.14, -3.38, 0)),  # 11
    Part.LineSegment(App.Vector(3.14, -3.38, 0), App.Vector(3.12, -2.67, 0)),  # 12
    Part.ArcOfCircle(Part.Circle(App.Vector(3.68, -2.65, 0), App.Vector(0, 0, 1), 0.56), math.radians(156), math.radians(182)),  # 13
    Part.LineSegment(App.Vector(3.16, -2.42, 0), App.Vector(3.52, -1.62, 0)),  # 14
    Part.ArcOfCircle(Part.Circle(App.Vector(3.29, -1.52, 0), App.Vector(0, 0, 1), 0.25), math.radians(-24), math.radians(28)),  # 15
    Part.LineSegment(App.Vector(3.51, -1.4, 0), App.Vector(3.1, -0.62, 0)),  # 16
    Part.ArcOfCircle(Part.Circle(App.Vector(3.6, -0.36, 0), App.Vector(0, 0, 1), 0.56), math.radians(-178), math.radians(-152)),  # 17
    Part.LineSegment(App.Vector(3.04, -0.38, 0), App.Vector(3, 0.82, 0)),  # 18
    Part.ArcOfCircle(Part.Circle(App.Vector(2.74, 0.81, 0), App.Vector(0, 0, 1), 0.25), math.radians(2), math.radians(90)),  # 19
], False)
sketch9.addConstraint([
    Sketcher.Constraint("Coincident", 0, 2, 1, 1),
    Sketcher.Constraint("Coincident", 1, 2, 2, 1),
    Sketcher.Constraint("Tangent", 2, 2, 3, 2),
    Sketcher.Constraint("Tangent", 3, 1, 4, 1),
    Sketcher.Constraint("Tangent", 4, 2, 5, 1),
    Sketcher.Constraint("Tangent", 5, 2, 6, 1),
    Sketcher.Constraint("Tangent", 6, 2, 7, 2),
    Sketcher.Constraint("Tangent", 7, 1, 8, 1),
    Sketcher.Constraint("Tangent", 8, 2, 9, 1),
    Sketcher.Constraint("Tangent", 9, 2, 10, 1),
    Sketcher.Constraint("Coincident", 10, 2, 11, 1),
    Sketcher.Constraint("Coincident", 11, 2, 12, 1),
    Sketcher.Constraint("Tangent", 12, 2, 13, 2),
    Sketcher.Constraint("Tangent", 13, 1, 14, 1),
    Sketcher.Constraint("Tangent", 14, 2, 15, 1),
    Sketcher.Constraint("Tangent", 15, 2, 16, 1),
    Sketcher.Constraint("Tangent", 16, 2, 17, 2),
    Sketcher.Constraint("Tangent", 17, 1, 18, 1),
    Sketcher.Constraint("Tangent", 18, 2, 19, 1),
    Sketcher.Constraint("Tangent", 19, 2, 0, 1),
    Sketcher.Constraint("Horizontal", 0),
    Sketcher.Constraint("Vertical", 1),
    Sketcher.Constraint("Horizontal", 2),
    Sketcher.Constraint("Coincident", 13, 3, 9, 3),
    Sketcher.Constraint("Coincident", 15, 3, 7, 3),
    Sketcher.Constraint("Coincident", 17, 3, 5, 3),
    Sketcher.Constraint("Coincident", 19, 3, 3, 3),
    Sketcher.Constraint("Equal", 3, 7),
    Sketcher.Constraint("Equal", 5, 9),
    Sketcher.Constraint("Equal", 7, 13),
    Sketcher.Constraint("Equal", 9, 15),
    Sketcher.Constraint("Equal", 13, 17),
    Sketcher.Constraint("Equal", 15, 19),
    Sketcher.Constraint("Parallel", 4, 10),
    Sketcher.Constraint("Perpendicular", 10, 11),
    Sketcher.Constraint("Perpendicular", 11, 12),
    Sketcher.Constraint("Equal", 6, 8),
    Sketcher.Constraint("Radius", 5, Q("0.01 in")),
    Sketcher.Constraint("Angle", 4, Q("-88 deg")),
    Sketcher.Constraint("Radius", 3, Q("0.022 in")),
    Sketcher.Constraint("DistanceY", 11, 2, -1, 1, Q("0.133 in")),
    Sketcher.Constraint("DistanceX", 0, 2, 0, 1, 0.215509),
    Sketcher.Constraint("DistanceX", -1, 1, 3, 3, 2.741999),
    Sketcher.Constraint("DistanceY", 9, 3, -1, 1, 2.649898),
    Sketcher.Constraint("DistanceX", 12, 2, 13, 1, 0.0472),
    Sketcher.Constraint("DistanceX", -1, 1, 5, 3, 3.596269),
    Sketcher.Constraint("DistanceY", 7, 3, -1, 1, 1.51879),
    Sketcher.Constraint("DistanceX", -1, 1, 9, 3, 3.67612),
])
pad8 = body.newObject("PartDesign::Pad", "Pad007")
pad8.Profile = sketch9
pad8.Length = Q("0.028 in")

# Sketch on an angled plane
sketch10 = body.newObject("Sketcher::SketchObject", "Sketch009")
sketch10.Placement = App.Placement(App.Vector(3.325373, 0.116125, 0), App.Rotation(App.Vector(0, 0, -1), App.Vector(-0.034899497, 0.999390827, 0), App.Vector(0.999390827, 0.034899497, 0), "ZXY"))
sketch10.addGeometry([
    Part.LineSegment(App.Vector(2.65, -3.49, 0), App.Vector(2.65, -2.78, 0)),  # 0
    Part.LineSegment(App.Vector(2.65, -2.78, 0), App.Vector(2.52, -3.31, 0)),  # 1
    Part.ArcOfCircle(Part.Circle(App.Vector(2.29, -3.25, 0), App.Vector(0, 0, 1), 0.23), math.radians(-90), math.radians(-14)),  # 2
    Part.LineSegment(App.Vector(2.29, -3.49, 0), App.Vector(2.65, -3.49, 0)),  # 3
    Part.LineSegment(App.Vector(1.94, -3.49, 0), App.Vector(2.29, -3.49, 0)),  # 4
    Part.ArcOfCircle(Part.Circle(App.Vector(2.29, -3.25, 0), App.Vector(0, 0, 1), 0.23), math.radians(-166), math.radians(-90)),  # 5
    Part.LineSegment(App.Vector(2.07, -3.31, 0), App.Vector(1.94, -2.78, 0)),  # 6
    Part.LineSegment(App.Vector(1.94, -2.78, 0), App.Vector(1.94, -3.49, 0)),  # 7
], False)
sketch10.addConstraint([
    Sketcher.Constraint("Coincident", 0, 2, 1, 1),
    Sketcher.Constraint("Tangent", 1, 2, 2, 2),
    Sketcher.Constraint("Tangent", 2, 1, 3, 1),
    Sketcher.Constraint("Coincident", 3, 2, 0, 1),
    Sketcher.Constraint("Tangent", 4, 2, 5, 2),
    Sketcher.Constraint("Tangent", 5, 1, 6, 1),
    Sketcher.Constraint("Coincident", 6, 2, 7, 1),
    Sketcher.Constraint("Coincident", 7, 2, 4, 1),
    Sketcher.Constraint("Vertical", 0),
    Sketcher.Constraint("Horizontal", 3),
    Sketcher.Constraint("Horizontal", 4),
    Sketcher.Constraint("Vertical", 7),
    Sketcher.Constraint("Coincident", 5, 3, 2, 3),
    Sketcher.Constraint("Equal", 2, 5),
    Sketcher.Constraint("Horizontal", 1, 2, 5, 1),
    Sketcher.Constraint("Horizontal", 0, 2, 6, 2),
    Sketcher.Constraint("DistanceX", 3, 1, 3, 2, Q("0.014 in")),
    Sketcher.Constraint("Radius", 2, 0.23184),
    Sketcher.Constraint("DistanceY", 0, 1, 0, 2, 0.709232),
    Sketcher.Constraint("DistanceX", -1, 1, 2, 3, 2.29235),
    Sketcher.Constraint("DistanceY", 2, 3, -1, 1, 3.253971),
])
pocket2 = body.newObject("PartDesign::Pocket", "Pocket001")
pocket2.Profile = sketch10
pocket2.Length = Q("0.028 in")

doc.recompute()
